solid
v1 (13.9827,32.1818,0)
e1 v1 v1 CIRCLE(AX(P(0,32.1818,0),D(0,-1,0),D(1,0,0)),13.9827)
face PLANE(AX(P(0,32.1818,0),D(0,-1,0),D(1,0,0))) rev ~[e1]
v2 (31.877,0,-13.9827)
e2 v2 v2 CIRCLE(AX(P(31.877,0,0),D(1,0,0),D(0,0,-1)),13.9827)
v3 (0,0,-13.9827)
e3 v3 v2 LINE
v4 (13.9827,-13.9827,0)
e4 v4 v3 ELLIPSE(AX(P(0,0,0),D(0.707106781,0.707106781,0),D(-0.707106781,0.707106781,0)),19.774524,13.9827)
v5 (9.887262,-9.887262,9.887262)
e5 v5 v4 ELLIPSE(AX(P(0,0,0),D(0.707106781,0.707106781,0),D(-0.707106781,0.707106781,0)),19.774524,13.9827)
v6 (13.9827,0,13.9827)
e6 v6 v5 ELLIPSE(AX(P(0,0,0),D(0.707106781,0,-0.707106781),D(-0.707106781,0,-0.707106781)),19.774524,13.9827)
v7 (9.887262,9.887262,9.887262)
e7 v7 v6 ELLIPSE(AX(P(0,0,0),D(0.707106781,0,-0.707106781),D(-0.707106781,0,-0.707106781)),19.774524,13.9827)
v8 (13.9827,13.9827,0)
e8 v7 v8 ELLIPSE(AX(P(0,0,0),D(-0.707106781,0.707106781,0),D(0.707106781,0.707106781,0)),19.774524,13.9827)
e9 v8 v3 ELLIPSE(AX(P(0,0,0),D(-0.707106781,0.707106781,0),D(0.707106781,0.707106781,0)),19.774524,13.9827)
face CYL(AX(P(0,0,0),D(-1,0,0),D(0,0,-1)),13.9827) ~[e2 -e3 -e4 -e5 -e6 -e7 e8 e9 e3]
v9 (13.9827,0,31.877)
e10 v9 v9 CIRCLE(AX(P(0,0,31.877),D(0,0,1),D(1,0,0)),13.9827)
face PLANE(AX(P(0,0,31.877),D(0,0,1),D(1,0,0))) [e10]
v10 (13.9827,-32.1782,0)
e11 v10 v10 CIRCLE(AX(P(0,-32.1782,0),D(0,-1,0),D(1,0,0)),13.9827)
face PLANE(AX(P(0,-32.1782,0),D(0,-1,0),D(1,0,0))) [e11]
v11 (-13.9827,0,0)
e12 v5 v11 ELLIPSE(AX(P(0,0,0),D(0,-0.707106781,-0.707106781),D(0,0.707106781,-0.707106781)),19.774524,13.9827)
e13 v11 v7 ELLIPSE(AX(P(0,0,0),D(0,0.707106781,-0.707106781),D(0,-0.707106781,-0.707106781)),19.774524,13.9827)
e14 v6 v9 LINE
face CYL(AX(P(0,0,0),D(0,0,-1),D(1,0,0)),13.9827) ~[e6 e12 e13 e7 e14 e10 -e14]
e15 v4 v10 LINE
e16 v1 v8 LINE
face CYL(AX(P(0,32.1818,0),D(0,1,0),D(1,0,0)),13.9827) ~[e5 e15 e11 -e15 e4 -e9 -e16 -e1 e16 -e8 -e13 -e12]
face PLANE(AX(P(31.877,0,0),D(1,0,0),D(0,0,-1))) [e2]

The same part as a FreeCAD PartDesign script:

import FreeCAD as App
import Part
import Sketcher
from FreeCAD import Vector
Q = App.Units.Quantity

doc = App.newDocument("Part")
body = doc.addObject("PartDesign::Body", "Body")

# Sketch on YZ plane
sketch1 = body.newObject("Sketcher::SketchObject", "Sketch")
sketch1.AttachmentSupport = (doc.getObject("YZ_Plane"), [""])
sketch1.MapMode = "FlatFace"
sketch1.addGeometry(Part.Circle(Vector(0, 0, 0), Vector(0, 0, 1), 14), False)
sketch1.addConstraint([
    Sketcher.Constraint("Coincident", 0, 3, -1, 1),
    Sketcher.Constraint("Diameter", 0, Q("1.101 in")),
])
pad1 = body.newObject("PartDesign::Pad", "Pad")
pad1.Profile = sketch1
pad1.Length = Q("1.255 in")
body2 = doc.addObject("PartDesign::Body", "Body001")

# Sketch on XZ plane
sketch2 = body2.newObject("Sketcher::SketchObject", "Sketch001")
sketch2.AttachmentSupport = (doc.getObject("XZ_Plane001"), [""])
sketch2.MapMode = "FlatFace"
sketch2.AttachmentOffset = App.Placement(Vector(0, 0, -1.267 * 25.4), App.Rotation())
sketch2.addGeometry(Part.Circle(Vector(0, 0, 0), Vector(0, 0, 1), 14), False)
sketch2.addConstraint([
    Sketcher.Constraint("Coincident", 0, 3, -1, 1),
    Sketcher.Constraint("Diameter", 0, Q("1.101 in")),
])
pad2 = body2.newObject("PartDesign::Pad", "Pad001")
pad2.Profile = sketch2
pad2.Length = 64.36
body3 = doc.addObject("PartDesign::Body", "Body002")

# Sketch on XY plane
sketch3 = body3.newObject("Sketcher::SketchObject", "Sketch002")
sketch3.AttachmentSupport = (doc.getObject("XY_Plane002"), [""])
sketch3.MapMode = "FlatFace"
sketch3.addGeometry(Part.Circle(Vector(0, 0, 0), Vector(0, 0, 1), 14), False)
sketch3.addConstraint([
    Sketcher.Constraint("Coincident", 0, 3, -1, 1),
    Sketcher.Constraint("Diameter", 0, Q("1.101 in")),
])
pad3 = body3.newObject("PartDesign::Pad", "Pad002")
pad3.Profile = sketch3
pad3.Length = Q("1.255 in")
doc.recompute()

boolean = body3.newObject("PartDesign::Boolean", "Boolean")
boolean.Type = "Fuse"
boolean.addObjects([body2])
doc.recompute()

boolean2 = body3.newObject("PartDesign::Boolean", "Boolean001")
boolean2.Type = "Fuse"
boolean2.addObjects([body])

doc.recompute()
